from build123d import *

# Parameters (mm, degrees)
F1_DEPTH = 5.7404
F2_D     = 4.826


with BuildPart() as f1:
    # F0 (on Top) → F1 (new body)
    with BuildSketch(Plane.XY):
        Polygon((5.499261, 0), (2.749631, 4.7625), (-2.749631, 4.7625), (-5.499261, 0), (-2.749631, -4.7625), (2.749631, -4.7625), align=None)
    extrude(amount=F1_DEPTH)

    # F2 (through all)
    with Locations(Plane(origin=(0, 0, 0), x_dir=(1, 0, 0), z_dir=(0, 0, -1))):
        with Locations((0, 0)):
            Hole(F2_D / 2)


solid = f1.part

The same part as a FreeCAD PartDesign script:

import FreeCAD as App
import Part
import Sketcher
from FreeCAD import Vector
Q = App.Units.Quantity


def add_polygon(sketch, points):
    """Adds a closed chain of lines whose ends are joined by coincident constraints."""
    first, n = sketch.GeometryCount, len(points)
    for a, b in zip(points, points[1:] + points[:1]):
        sketch.addGeometry(Part.LineSegment(App.Vector(*a, 0), App.Vector(*b, 0)), False)
    for i in range(n):
        sketch.addConstraint(Sketcher.Constraint("Coincident", first + i, 2, first + (i + 1) % n, 1))

doc = App.newDocument("Part")
params = doc.addObject("Spreadsheet::Sheet", "Params")
for row, (alias, value) in enumerate([
    ("pad1_length", "0.226 in"),
    ("sketch2_diameter", "0.19 in"),
    ("hole_diameter", "0.19 in"),
], start=1):
    params.set(f"A{row}", alias)
    params.set(f"B{row}", "=" + value)
    params.setAlias(f"B{row}", alias)

body = doc.addObject("PartDesign::Body", "Body")

sketch1 = body.newObject("Sketcher::SketchObject", "Sketch")
sketch1.AttachmentSupport = (doc.getObject("XY_Plane"), [""])
sketch1.MapMode = "FlatFace"
add_polygon(sketch1, [(5.499261, 0), (2.749631, 4.7625), (-2.749631, 4.7625), (-5.499261, 0), (-2.749631, -4.7625), (2.749631, -4.7625)])
sketch1.addConstraint([
    Sketcher.Constraint("Horizontal", 1),
    Sketcher.Constraint("Horizontal", 4),
    Sketcher.Constraint("Symmetric", 0, 2, 3, 2, -1, 1),
    Sketcher.Constraint("Symmetric", 2, 2, 5, 2, -1, 1),
    Sketcher.Constraint("PointOnObject", 2, 2, -1),
    Sketcher.Constraint("Parallel", 2, 5),
    Sketcher.Constraint("Vertical", 1, 2, 3, 2),
    Sketcher.Constraint("Angle", 0, Q("119.999994 deg")),
    Sketcher.Constraint("DistanceY", -1, 1, 0, 2, Q("0.1875 in")),
    Sketcher.Constraint("DistanceX", 1, 2, 1, 1, Q("5.499262 mm")),
])
pad1 = body.newObject("PartDesign::Pad", "Pad")
pad1.Profile = sketch1
pad1.setExpression("Length", "Params.pad1_length")

sketch2 = body.newObject("Sketcher::SketchObject", "Sketch001")
sketch2.AttachmentSupport = (doc.getObject("XY_Plane"), [""])
sketch2.MapMode = "FlatFace"
sketch2.addGeometry(Part.Circle(Vector(0, 0, 0), Vector(0, 0, 1), 2.413), False)
sketch2.addConstraint([
    Sketcher.Constraint("Coincident", 0, 3, -1, 1),
    Sketcher.Constraint("Diameter", 0, Q("0.19 in")),
])
sketch2.setExpression("Constraints[1]", "Params.sketch2_diameter")
doc.recompute()
hole = body.newObject("PartDesign::Hole", "Hole")
hole.Profile = sketch2
hole.ThreadType = "None"
hole.setExpression("Diameter", "Params.hole_diameter")
hole.DepthType = "ThroughAll"
hole.Reversed = True

doc.recompute()
